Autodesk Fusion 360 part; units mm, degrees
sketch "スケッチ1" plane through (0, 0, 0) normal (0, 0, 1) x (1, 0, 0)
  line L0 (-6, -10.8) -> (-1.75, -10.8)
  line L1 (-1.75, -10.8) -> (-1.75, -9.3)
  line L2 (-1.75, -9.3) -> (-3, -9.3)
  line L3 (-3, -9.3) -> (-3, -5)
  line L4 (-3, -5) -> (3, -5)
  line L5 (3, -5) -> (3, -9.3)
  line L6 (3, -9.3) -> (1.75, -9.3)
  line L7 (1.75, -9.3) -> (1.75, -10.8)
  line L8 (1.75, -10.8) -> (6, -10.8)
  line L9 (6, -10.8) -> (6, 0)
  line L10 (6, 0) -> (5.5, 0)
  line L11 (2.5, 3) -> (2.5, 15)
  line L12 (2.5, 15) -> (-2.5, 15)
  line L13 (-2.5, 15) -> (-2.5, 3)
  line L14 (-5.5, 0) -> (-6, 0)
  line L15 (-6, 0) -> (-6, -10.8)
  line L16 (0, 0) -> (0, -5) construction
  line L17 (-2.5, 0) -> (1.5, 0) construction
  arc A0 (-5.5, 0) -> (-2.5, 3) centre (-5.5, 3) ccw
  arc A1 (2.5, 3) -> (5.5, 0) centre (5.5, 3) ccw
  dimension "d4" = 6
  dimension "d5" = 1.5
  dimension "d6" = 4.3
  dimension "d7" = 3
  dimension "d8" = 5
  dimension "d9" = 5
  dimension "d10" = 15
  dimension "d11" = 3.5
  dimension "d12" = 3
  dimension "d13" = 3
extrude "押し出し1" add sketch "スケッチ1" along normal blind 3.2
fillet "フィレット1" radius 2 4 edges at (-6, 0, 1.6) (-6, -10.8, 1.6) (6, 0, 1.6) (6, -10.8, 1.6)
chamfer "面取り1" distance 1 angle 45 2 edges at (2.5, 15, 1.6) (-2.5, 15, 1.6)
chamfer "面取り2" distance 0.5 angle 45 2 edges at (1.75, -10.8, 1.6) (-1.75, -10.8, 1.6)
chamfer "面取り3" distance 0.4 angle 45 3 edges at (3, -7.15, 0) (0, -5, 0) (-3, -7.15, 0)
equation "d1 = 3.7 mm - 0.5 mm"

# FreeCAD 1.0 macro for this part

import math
import FreeCAD as App
import Part
import Sketcher

V = App.Vector
Q = App.Units.Quantity


def edges_at(feature, points):
    """Names of the edges that pass closest to the given points."""
    edges = feature.Shape.Edges
    near = lambda p: min(range(len(edges)), key=lambda i: edges[i].distToShape(Part.Vertex(*p))[0])
    return sorted({f"Edge{near(p) + 1}" for p in points})

doc = App.newDocument("Part")
body = doc.addObject("PartDesign::Body", "Body")

sketch1 = body.newObject("Sketcher::SketchObject", "Sketch")
sketch1.AttachmentSupport = (doc.getObject("XY_Plane"), [""])
sketch1.MapMode = "FlatFace"
sketch1.addGeometry([
    Part.LineSegment(V(-6, 0, 0), V(-6, -10.8, 0)),
    Part.LineSegment(V(-6, -10.8, 0), V(-1.75, -10.8, 0)),
    Part.LineSegment(V(-1.75, -10.8, 0), V(-1.75, -9.3, 0)),
    Part.LineSegment(V(-1.75, -9.3, 0), V(-3, -9.3, 0)),
    Part.LineSegment(V(-3, -9.3, 0), V(-3, -5, 0)),
    Part.LineSegment(V(-3, -5, 0), V(3, -5, 0)),
    Part.LineSegment(V(3, -5, 0), V(3, -9.3, 0)),
    Part.LineSegment(V(3, -9.3, 0), V(1.75, -9.3, 0)),
    Part.LineSegment(V(1.75, -9.3, 0), V(1.75, -10.8, 0)),
    Part.LineSegment(V(1.75, -10.8, 0), V(6, -10.8, 0)),
    Part.LineSegment(V(6, -10.8, 0), V(6, 0, 0)),
    Part.LineSegment(V(6, 0, 0), V(5.5, 0, 0)),
    Part.ArcOfCircle(Part.Circle(V(5.5, 3, 0), V(0, 0, 1), 3), math.radians(180), math.radians(270)),
    Part.LineSegment(V(2.5, 3, 0), V(2.5, 15, 0)),
    Part.LineSegment(V(2.5, 15, 0), V(-2.5, 15, 0)),
    Part.LineSegment(V(-2.5, 15, 0), V(-2.5, 3, 0)),
    Part.ArcOfCircle(Part.Circle(V(-5.5, 3, 0), V(0, 0, 1), 3), math.radians(-90), math.radians(0)),
    Part.LineSegment(V(-5.5, 0, 0), V(-6, 0, 0)),
], False)
sketch1.addConstraint([
    Sketcher.Constraint("Coincident", 0, 2, 1, 1),
    Sketcher.Constraint("Coincident", 1, 2, 2, 1),
    Sketcher.Constraint("Coincident", 2, 2, 3, 1),
    Sketcher.Constraint("Coincident", 3, 2, 4, 1),
    Sketcher.Constraint("Coincident", 4, 2, 5, 1),
    Sketcher.Constraint("Coincident", 5, 2, 6, 1),
    Sketcher.Constraint("Coincident", 6, 2, 7, 1),
    Sketcher.Constraint("Coincident", 7, 2, 8, 1),
    Sketcher.Constraint("Coincident", 8, 2, 9, 1),
    Sketcher.Constraint("Coincident", 9, 2, 10, 1),
    Sketcher.Constraint("Coincident", 10, 2, 11, 1),
    Sketcher.Constraint("Tangent", 11, 2, 12, 2),
    Sketcher.Constraint("Tangent", 12, 1, 13, 1),
    Sketcher.Constraint("Coincident", 13, 2, 14, 1),
    Sketcher.Constraint("Coincident", 14, 2, 15, 1),
    Sketcher.Constraint("Tangent", 15, 2, 16, 2),
    Sketcher.Constraint("Tangent", 16, 1, 17, 1),
    Sketcher.Constraint("Coincident", 17, 2, 0, 1),
    Sketcher.Constraint("Vertical", 0),
    Sketcher.Constraint("Horizontal", 1),
    Sketcher.Constraint("Vertical", 2),
    Sketcher.Constraint("Horizontal", 3),
    Sketcher.Constraint("Vertical", 4),
    Sketcher.Constraint("Horizontal", 5),
    Sketcher.Constraint("Vertical", 6),
    Sketcher.Constraint("Horizontal", 7),
    Sketcher.Constraint("Vertical", 8),
    Sketcher.Constraint("Horizontal", 9),
    Sketcher.Constraint("Vertical", 10),
    Sketcher.Constraint("Horizontal", 11),
    Sketcher.Constraint("Vertical", 13),
    Sketcher.Constraint("Horizontal", 14),
    Sketcher.Constraint("Vertical", 15),
    Sketcher.Constraint("Horizontal", 17),
    Sketcher.Constraint("Equal", 12, 16),
    Sketcher.Constraint("Symmetric", 11, 2, 16, 1, -1, 1),
    Sketcher.Constraint("Symmetric", 3, 2, 6, 2, -2),
    Sketcher.Constraint("Symmetric", 1, 2, 8, 2, -2),
    Sketcher.Constraint("Symmetric", 10, 2, 17, 2, -2),
    Sketcher.Constraint("Radius", 12, Q("3 mm")),
    Sketcher.Constraint("DistanceX", 5, 1, 5, 2, Q("6 mm")),
    Sketcher.Constraint("DistanceX", 14, 2, 14, 1, Q("5 mm")),
    Sketcher.Constraint("DistanceY", 2, 1, 2, 2, Q("1.5 mm")),
    Sketcher.Constraint("DistanceY", 4, 1, 4, 2, Q("4.3 mm")),
    Sketcher.Constraint("DistanceX", 0, 2, -1, 1, Q("6 mm")),
    Sketcher.Constraint("DistanceY", 4, 2, -1, 1, Q("5 mm")),
    Sketcher.Constraint("DistanceY", -1, 1, 13, 2, Q("15 mm")),
    Sketcher.Constraint("DistanceX", 2, 2, 7, 2, Q("3.5 mm")),
])
pad1 = body.newObject("PartDesign::Pad", "Pad")
pad1.Profile = sketch1
pad1.Length = 3.2
doc.recompute()

fillet = body.newObject("PartDesign::Fillet", "Fillet")
fillet.Base = (pad1, edges_at(pad1, [
    (-6, 0, 1.6),
    (-6, -10.8, 1.6),
    (6, 0, 1.6),
    (6, -10.8, 1.6),
]))
fillet.Radius = 2
doc.recompute()

chamfer = body.newObject("PartDesign::Chamfer", "Chamfer")
chamfer.Base = (fillet, edges_at(fillet, [(2.5, 15, 1.6), (-2.5, 15, 1.6)]))
chamfer.Size = 1
doc.recompute()

chamfer2 = body.newObject("PartDesign::Chamfer", "Chamfer001")
chamfer2.Base = (chamfer, edges_at(chamfer, [(1.75, -10.8, 1.6), (-1.75, -10.8, 1.6)]))
chamfer2.Size = 0.5
doc.recompute()

chamfer3 = body.newObject("PartDesign::Chamfer", "Chamfer002")
chamfer3.Base = (chamfer2, edges_at(chamfer2, [(3, -7.15, 0), (0, -5, 0), (-3, -7.15, 0)]))
chamfer3.Size = 0.4

doc.recompute()
